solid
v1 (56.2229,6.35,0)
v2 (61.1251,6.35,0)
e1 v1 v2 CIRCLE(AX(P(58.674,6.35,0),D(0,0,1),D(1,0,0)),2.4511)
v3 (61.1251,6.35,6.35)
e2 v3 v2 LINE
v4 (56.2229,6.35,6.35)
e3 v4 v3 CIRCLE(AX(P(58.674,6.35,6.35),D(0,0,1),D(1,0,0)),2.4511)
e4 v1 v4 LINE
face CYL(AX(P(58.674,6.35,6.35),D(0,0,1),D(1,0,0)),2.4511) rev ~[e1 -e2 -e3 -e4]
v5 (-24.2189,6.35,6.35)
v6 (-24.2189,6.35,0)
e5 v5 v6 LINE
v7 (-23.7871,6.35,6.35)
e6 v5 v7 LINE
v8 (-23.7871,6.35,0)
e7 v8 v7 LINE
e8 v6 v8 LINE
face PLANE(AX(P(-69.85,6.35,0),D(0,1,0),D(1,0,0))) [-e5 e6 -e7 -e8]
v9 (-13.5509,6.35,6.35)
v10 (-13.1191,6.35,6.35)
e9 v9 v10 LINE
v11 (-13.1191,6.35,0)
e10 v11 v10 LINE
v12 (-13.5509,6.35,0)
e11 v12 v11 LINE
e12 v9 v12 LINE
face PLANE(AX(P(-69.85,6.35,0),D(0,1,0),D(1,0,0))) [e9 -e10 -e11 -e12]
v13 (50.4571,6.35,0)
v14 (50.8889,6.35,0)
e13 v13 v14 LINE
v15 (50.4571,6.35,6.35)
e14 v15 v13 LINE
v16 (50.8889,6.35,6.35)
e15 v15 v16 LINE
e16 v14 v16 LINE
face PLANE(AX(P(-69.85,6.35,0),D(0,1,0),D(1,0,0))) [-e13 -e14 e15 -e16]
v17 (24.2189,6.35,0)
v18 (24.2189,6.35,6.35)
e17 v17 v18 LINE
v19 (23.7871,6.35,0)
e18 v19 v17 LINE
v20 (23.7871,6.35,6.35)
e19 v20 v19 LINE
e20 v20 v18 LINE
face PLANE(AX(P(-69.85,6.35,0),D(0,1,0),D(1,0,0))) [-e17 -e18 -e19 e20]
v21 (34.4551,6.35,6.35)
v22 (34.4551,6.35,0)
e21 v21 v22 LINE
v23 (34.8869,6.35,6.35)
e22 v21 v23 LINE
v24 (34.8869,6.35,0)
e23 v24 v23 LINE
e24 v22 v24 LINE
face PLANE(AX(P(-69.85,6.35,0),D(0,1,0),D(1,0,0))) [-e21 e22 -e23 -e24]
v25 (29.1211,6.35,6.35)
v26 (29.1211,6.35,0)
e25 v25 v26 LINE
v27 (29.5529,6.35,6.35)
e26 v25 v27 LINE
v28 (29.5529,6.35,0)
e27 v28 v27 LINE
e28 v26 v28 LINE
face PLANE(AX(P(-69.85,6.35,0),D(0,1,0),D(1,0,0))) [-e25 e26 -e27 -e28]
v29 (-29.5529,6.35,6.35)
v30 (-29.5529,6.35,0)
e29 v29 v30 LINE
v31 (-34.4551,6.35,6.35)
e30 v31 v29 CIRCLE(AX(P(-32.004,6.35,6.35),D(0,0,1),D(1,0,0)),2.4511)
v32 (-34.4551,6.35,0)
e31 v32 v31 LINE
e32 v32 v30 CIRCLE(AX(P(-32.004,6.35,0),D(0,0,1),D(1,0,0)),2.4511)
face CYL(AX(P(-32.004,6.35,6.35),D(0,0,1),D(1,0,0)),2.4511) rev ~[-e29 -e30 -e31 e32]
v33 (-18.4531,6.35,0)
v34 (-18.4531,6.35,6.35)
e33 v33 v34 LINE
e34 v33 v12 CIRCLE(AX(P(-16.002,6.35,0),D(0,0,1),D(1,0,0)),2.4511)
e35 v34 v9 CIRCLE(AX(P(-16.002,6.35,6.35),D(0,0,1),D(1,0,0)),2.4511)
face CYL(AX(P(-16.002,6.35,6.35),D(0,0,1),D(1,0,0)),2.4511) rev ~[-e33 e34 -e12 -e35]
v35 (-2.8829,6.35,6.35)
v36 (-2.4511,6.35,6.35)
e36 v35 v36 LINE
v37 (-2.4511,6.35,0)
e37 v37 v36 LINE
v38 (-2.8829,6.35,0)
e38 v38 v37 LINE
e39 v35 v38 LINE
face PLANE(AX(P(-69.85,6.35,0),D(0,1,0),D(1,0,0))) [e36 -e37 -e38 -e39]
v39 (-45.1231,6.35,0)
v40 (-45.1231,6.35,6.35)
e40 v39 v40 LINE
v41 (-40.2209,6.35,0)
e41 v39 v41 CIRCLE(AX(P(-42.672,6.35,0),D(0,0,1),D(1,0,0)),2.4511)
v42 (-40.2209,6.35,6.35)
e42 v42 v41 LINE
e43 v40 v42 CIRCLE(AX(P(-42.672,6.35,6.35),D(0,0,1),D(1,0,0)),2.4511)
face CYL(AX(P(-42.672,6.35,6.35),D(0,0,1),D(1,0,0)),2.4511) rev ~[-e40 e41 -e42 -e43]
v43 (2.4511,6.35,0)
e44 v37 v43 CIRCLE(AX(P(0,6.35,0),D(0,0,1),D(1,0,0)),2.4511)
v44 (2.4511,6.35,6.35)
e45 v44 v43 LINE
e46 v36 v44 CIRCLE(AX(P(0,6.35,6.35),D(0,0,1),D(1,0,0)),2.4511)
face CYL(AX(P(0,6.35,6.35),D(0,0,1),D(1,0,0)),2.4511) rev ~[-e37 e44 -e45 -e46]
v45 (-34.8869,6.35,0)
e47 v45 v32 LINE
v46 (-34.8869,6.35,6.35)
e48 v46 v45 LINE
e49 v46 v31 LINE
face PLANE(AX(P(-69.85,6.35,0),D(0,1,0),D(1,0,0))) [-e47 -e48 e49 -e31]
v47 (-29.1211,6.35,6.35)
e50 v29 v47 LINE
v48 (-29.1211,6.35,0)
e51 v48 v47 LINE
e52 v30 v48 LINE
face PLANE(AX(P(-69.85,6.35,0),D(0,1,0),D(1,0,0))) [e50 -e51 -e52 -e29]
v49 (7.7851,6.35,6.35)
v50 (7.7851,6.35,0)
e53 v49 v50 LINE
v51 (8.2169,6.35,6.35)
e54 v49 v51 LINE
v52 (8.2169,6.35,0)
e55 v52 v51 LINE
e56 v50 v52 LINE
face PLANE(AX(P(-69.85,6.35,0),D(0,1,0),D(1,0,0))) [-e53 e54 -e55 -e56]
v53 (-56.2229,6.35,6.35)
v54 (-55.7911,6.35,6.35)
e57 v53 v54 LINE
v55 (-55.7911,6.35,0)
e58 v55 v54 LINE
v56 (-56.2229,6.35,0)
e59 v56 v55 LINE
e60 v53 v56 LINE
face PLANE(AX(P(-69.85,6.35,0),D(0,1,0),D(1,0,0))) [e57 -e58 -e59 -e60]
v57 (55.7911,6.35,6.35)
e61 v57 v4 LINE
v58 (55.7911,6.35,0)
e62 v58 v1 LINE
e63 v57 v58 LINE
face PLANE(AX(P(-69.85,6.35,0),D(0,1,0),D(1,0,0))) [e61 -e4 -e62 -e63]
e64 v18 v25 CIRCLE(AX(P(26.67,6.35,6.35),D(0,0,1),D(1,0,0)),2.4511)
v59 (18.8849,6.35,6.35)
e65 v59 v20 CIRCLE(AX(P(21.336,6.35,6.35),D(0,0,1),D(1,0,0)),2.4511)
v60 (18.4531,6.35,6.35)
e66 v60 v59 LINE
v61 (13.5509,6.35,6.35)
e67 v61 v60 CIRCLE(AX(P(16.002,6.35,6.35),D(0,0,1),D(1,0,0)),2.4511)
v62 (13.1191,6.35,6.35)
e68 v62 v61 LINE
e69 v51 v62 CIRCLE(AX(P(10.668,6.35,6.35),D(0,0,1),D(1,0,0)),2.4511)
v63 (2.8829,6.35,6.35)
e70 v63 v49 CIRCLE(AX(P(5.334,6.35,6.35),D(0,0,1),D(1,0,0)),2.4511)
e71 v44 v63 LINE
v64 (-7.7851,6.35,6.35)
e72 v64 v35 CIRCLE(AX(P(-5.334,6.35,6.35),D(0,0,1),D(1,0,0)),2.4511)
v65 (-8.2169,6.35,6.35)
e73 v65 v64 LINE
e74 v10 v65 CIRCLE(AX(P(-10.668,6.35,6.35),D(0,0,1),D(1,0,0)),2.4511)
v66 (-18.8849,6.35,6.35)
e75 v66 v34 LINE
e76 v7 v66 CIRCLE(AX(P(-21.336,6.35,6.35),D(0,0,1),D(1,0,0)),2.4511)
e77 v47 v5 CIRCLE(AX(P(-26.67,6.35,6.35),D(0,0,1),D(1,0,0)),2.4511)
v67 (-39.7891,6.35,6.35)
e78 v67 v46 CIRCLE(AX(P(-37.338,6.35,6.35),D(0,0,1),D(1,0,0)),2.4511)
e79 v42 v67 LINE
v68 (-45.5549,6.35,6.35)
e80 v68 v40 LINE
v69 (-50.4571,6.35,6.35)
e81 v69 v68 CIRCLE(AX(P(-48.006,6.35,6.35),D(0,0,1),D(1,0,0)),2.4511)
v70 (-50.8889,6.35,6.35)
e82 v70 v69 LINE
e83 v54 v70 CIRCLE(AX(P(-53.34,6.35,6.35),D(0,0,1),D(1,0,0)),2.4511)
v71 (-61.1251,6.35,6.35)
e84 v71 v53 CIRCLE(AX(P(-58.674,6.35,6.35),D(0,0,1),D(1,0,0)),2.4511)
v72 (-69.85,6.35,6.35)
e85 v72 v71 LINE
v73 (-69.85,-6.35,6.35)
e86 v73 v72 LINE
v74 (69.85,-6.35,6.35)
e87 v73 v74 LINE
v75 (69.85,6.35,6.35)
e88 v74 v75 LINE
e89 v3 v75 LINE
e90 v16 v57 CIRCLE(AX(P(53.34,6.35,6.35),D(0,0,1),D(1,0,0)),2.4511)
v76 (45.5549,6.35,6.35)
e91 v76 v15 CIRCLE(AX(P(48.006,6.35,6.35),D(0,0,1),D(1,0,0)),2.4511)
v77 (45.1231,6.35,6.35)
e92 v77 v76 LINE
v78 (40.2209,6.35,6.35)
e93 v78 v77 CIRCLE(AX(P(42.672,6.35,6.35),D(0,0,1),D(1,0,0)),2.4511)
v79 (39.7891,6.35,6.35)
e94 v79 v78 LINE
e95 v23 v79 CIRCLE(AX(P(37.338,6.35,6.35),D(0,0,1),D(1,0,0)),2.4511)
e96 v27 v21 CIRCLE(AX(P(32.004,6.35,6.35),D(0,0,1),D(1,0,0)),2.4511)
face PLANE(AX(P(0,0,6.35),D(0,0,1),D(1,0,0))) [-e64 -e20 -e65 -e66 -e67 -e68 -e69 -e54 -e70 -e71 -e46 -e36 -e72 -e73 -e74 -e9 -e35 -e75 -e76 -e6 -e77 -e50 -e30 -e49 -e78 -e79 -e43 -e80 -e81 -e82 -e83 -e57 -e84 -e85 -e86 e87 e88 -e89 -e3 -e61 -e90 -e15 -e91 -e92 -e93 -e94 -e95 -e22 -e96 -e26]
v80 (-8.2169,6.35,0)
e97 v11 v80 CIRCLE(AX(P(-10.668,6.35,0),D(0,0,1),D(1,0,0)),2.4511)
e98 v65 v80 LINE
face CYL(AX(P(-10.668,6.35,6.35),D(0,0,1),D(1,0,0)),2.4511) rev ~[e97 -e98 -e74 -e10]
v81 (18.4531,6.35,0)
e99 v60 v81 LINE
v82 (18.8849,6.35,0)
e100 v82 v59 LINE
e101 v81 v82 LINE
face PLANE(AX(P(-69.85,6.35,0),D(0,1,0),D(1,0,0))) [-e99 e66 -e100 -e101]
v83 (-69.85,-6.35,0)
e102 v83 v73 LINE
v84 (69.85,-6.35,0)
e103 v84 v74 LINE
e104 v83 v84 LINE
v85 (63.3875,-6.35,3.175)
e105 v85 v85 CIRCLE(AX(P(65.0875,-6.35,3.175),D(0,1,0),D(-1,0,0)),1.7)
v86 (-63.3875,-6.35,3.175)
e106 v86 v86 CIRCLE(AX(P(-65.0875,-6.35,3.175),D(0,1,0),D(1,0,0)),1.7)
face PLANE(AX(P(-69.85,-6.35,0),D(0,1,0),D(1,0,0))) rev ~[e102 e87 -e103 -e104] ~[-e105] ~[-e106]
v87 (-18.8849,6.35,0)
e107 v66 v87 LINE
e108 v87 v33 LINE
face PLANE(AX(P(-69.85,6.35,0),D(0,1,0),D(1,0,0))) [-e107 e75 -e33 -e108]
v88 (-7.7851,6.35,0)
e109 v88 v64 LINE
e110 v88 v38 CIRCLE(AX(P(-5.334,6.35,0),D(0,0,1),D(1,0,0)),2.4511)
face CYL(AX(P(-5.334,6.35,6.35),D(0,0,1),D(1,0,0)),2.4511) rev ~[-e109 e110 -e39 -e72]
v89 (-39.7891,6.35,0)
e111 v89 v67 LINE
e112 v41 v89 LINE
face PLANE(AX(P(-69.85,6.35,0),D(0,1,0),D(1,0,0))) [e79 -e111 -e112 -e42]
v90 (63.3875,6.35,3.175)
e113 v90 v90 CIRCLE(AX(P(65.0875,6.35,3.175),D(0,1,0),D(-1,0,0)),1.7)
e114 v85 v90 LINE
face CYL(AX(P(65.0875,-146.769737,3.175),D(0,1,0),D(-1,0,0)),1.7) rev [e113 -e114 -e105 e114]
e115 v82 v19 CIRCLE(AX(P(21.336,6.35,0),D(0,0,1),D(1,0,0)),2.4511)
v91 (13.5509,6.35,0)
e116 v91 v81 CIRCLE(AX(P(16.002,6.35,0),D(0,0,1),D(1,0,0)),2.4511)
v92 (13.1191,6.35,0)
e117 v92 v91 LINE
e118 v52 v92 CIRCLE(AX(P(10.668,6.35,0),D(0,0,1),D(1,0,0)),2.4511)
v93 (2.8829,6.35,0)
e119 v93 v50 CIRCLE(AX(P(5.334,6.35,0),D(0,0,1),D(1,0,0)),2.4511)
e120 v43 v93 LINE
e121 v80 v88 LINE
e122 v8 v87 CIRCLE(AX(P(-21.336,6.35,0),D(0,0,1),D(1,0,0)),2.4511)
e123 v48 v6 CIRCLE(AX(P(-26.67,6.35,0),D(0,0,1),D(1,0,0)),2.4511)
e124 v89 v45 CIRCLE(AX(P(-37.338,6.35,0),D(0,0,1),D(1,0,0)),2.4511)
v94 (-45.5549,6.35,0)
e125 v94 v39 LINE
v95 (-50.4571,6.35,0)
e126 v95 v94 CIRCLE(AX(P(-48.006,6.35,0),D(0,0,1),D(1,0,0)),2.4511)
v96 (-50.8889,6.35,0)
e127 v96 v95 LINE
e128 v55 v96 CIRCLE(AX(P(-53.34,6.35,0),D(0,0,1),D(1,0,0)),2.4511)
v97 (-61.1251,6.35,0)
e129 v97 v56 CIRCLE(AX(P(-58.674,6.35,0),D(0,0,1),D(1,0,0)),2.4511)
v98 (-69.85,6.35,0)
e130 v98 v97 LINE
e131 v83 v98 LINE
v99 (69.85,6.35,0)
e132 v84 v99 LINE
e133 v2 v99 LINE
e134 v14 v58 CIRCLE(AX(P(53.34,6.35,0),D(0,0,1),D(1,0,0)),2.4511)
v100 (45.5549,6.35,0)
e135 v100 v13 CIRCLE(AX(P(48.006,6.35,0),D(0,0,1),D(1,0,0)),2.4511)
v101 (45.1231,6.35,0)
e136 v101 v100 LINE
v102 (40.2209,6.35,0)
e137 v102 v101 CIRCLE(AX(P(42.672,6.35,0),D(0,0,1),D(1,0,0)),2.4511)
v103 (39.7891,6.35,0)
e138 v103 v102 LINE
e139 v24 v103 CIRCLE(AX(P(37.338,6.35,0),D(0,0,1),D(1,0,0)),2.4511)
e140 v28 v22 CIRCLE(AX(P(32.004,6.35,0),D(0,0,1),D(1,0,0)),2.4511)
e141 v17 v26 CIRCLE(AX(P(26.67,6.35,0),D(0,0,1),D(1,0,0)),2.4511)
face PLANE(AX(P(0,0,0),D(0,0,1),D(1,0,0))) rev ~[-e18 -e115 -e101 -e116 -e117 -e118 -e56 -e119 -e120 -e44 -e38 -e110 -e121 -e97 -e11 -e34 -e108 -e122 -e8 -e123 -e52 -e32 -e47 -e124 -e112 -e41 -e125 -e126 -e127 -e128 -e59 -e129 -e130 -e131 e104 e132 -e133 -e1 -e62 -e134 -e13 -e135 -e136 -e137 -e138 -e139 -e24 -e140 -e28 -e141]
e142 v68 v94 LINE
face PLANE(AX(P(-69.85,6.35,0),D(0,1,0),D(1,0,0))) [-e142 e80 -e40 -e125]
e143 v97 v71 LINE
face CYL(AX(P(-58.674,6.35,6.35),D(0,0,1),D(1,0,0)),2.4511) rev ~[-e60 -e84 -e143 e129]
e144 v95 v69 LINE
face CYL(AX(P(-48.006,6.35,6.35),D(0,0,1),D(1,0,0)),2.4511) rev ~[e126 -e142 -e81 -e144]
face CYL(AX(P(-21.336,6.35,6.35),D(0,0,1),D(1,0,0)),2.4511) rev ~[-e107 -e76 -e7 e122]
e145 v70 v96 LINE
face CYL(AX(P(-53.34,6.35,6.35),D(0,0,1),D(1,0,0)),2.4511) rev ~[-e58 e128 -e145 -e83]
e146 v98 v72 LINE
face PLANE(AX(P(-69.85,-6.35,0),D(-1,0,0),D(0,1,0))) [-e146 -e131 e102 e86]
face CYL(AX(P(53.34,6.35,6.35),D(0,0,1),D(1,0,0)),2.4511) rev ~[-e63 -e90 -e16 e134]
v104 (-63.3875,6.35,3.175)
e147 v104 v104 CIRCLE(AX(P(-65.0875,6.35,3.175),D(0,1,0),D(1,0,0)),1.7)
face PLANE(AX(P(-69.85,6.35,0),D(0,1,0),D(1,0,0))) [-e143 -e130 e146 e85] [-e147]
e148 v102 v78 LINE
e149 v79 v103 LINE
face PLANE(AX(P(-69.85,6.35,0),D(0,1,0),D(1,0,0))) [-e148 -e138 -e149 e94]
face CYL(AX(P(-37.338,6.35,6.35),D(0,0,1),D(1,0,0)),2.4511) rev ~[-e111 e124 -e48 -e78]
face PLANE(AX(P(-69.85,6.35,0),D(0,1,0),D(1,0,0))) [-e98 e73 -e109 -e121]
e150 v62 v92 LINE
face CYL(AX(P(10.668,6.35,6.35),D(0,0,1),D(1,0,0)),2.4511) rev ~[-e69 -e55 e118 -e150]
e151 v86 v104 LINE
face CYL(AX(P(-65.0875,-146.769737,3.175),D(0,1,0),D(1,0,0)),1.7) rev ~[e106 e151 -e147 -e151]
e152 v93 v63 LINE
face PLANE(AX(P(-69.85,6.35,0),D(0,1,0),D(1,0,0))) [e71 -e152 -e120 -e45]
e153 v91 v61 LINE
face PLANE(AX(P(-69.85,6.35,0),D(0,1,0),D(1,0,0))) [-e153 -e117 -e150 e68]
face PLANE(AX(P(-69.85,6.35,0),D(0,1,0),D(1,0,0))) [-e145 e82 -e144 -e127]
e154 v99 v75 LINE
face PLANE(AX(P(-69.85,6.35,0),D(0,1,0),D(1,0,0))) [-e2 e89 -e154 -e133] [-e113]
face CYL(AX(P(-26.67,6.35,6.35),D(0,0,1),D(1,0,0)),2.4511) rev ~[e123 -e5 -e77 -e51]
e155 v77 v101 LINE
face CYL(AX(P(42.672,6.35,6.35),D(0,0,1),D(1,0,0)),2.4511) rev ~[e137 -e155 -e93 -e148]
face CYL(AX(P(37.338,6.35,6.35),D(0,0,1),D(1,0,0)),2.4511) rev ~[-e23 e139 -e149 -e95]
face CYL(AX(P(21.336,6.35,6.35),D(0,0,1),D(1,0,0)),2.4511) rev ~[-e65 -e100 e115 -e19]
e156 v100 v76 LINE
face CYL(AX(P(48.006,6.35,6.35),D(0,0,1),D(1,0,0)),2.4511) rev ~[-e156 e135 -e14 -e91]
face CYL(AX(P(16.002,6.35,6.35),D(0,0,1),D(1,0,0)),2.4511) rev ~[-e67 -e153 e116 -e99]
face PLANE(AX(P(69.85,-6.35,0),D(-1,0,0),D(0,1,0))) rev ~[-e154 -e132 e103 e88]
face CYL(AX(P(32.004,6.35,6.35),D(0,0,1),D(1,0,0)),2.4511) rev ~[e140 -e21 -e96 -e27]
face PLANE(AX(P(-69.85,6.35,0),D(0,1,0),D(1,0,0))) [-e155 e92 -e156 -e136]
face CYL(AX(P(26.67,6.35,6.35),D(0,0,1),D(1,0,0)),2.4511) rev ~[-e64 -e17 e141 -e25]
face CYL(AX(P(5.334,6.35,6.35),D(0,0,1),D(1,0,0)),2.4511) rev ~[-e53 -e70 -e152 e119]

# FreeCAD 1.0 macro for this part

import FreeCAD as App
import Part
import Sketcher
from FreeCAD import Vector
Q = App.Units.Quantity


def add_polygon(sketch, points):
    """Adds a closed chain of lines whose ends are joined by coincident constraints."""
    first, n = sketch.GeometryCount, len(points)
    for a, b in zip(points, points[1:] + points[:1]):
        sketch.addGeometry(Part.LineSegment(App.Vector(*a, 0), App.Vector(*b, 0)), False)
    for i in range(n):
        sketch.addConstraint(Sketcher.Constraint("Coincident", first + i, 2, first + (i + 1) % n, 1))

doc = App.newDocument("Part")
body = doc.addObject("PartDesign::Body", "Body")

# Sketch on XY plane
sketch1 = body.newObject("Sketcher::SketchObject", "Sketch")
sketch1.AttachmentSupport = (doc.getObject("XY_Plane"), [""])
sketch1.MapMode = "FlatFace"
add_polygon(sketch1, [(-69.85, 6.35), (-69.85, -6.35), (69.85, -6.35), (69.85, 6.35)])  # lines 0-3
sketch1.addConstraint([
    Sketcher.Constraint("Vertical", 0),
    Sketcher.Constraint("Horizontal", 1),
    Sketcher.Constraint("Vertical", 2),
    Sketcher.Constraint("Horizontal", 3),
    Sketcher.Constraint("Symmetric", 0, 2, 2, 2, -1, 1),
    Sketcher.Constraint("DistanceX", 1, 1, 1, 2, Q("5.5 in")),
    Sketcher.Constraint("DistanceY", 0, 2, 0, 1, Q("0.5 in")),
])
pad1 = body.newObject("PartDesign::Pad", "Pad")
pad1.Profile = sketch1
pad1.Length = Q("0.25 in")

# Sketch on XY plane
sketch2 = body.newObject("Sketcher::SketchObject", "Sketch001")
sketch2.AttachmentSupport = (doc.getObject("XY_Plane"), [""])
sketch2.MapMode = "FlatFace"
sketch2.AttachmentOffset = App.Placement(Vector(0, 0, 0.25 * 25.4), App.Rotation())
sketch2.addGeometry([
    Part.Circle(Vector(0, 6.35, 0), Vector(0, 0, 1), 2.4511),  # 0
    Part.Circle(Vector(5.334, 6.35, 0), Vector(0, 0, 1), 2.4511),  # 1
    Part.Circle(Vector(10.668, 6.35, 0), Vector(0, 0, 1), 2.4511),  # 2
    Part.Circle(Vector(16.002, 6.35, 0), Vector(0, 0, 1), 2.4511),  # 3
    Part.Circle(Vector(21.336, 6.35, 0), Vector(0, 0, 1), 2.4511),  # 4
    Part.Circle(Vector(26.67, 6.35, 0), Vector(0, 0, 1), 2.4511),  # 5
    Part.Circle(Vector(32.004, 6.35, 0), Vector(0, 0, 1), 2.4511),  # 6
    Part.Circle(Vector(37.338, 6.35, 0), Vector(0, 0, 1), 2.4511),  # 7
    Part.Circle(Vector(42.672, 6.35, 0), Vector(0, 0, 1), 2.4511),  # 8
    Part.Circle(Vector(48.006, 6.35, 0), Vector(0, 0, 1), 2.4511),  # 9
    Part.Circle(Vector(53.34, 6.35, 0), Vector(0, 0, 1), 2.4511),  # 10
    Part.Circle(Vector(58.674, 6.35, 0), Vector(0, 0, 1), 2.4511),  # 11
    Part.Circle(Vector(-5.334, 6.35, 0), Vector(0, 0, 1), 2.4511),  # 12
    Part.Circle(Vector(-10.668, 6.35, 0), Vector(0, 0, 1), 2.4511),  # 13
    Part.Circle(Vector(-16.002, 6.35, 0), Vector(0, 0, 1), 2.4511),  # 14
    Part.Circle(Vector(-21.336, 6.35, 0), Vector(0, 0, 1), 2.4511),  # 15
    Part.Circle(Vector(-26.67, 6.35, 0), Vector(0, 0, 1), 2.4511),  # 16
    Part.Circle(Vector(-32.004, 6.35, 0), Vector(0, 0, 1), 2.4511),  # 17
    Part.Circle(Vector(-37.338, 6.35, 0), Vector(0, 0, 1), 2.4511),  # 18
    Part.Circle(Vector(-42.672, 6.35, 0), Vector(0, 0, 1), 2.4511),  # 19
    Part.Circle(Vector(-48.006, 6.35, 0), Vector(0, 0, 1), 2.4511),  # 20
    Part.Circle(Vector(-53.34, 6.35, 0), Vector(0, 0, 1), 2.4511),  # 21
    Part.Circle(Vector(-58.674, 6.35, 0), Vector(0, 0, 1), 2.4511),  # 22
], False)
sketch2.addConstraint([
    Sketcher.Constraint("Equal", 0, 1),
    Sketcher.Constraint("Equal", 1, 2),
    Sketcher.Constraint("Equal", 2, 3),
    Sketcher.Constraint("Equal", 3, 4),
    Sketcher.Constraint("Equal", 4, 5),
    Sketcher.Constraint("Equal", 5, 6),
    Sketcher.Constraint("Equal", 6, 7),
    Sketcher.Constraint("Equal", 7, 8),
    Sketcher.Constraint("Equal", 8, 9),
    Sketcher.Constraint("Equal", 9, 10),
    Sketcher.Constraint("Equal", 10, 11),
    Sketcher.Constraint("Equal", 11, 12),
    Sketcher.Constraint("Equal", 12, 13),
    Sketcher.Constraint("Equal", 13, 14),
    Sketcher.Constraint("Equal", 14, 15),
    Sketcher.Constraint("Equal", 15, 16),
    Sketcher.Constraint("Equal", 16, 17),
    Sketcher.Constraint("Equal", 17, 18),
    Sketcher.Constraint("Equal", 18, 19),
    Sketcher.Constraint("Equal", 19, 20),
    Sketcher.Constraint("Equal", 20, 21),
    Sketcher.Constraint("Equal", 21, 22),
    Sketcher.Constraint("Symmetric", 1, 3, 12, 3, -2),
    Sketcher.Constraint("Symmetric", 2, 3, 13, 3, -2),
    Sketcher.Constraint("Symmetric", 3, 3, 14, 3, -2),
    Sketcher.Constraint("Symmetric", 4, 3, 15, 3, -2),
    Sketcher.Constraint("Symmetric", 5, 3, 16, 3, -2),
    Sketcher.Constraint("Symmetric", 6, 3, 17, 3, -2),
    Sketcher.Constraint("Symmetric", 7, 3, 18, 3, -2),
    Sketcher.Constraint("Symmetric", 8, 3, 19, 3, -2),
    Sketcher.Constraint("Symmetric", 9, 3, 20, 3, -2),
    Sketcher.Constraint("Symmetric", 10, 3, 21, 3, -2),
    Sketcher.Constraint("Symmetric", 11, 3, 22, 3, -2),
    Sketcher.Constraint("PointOnObject", 0, 3, -2),
    Sketcher.Constraint("Horizontal", 0, 3, 1, 3),
    Sketcher.Constraint("Horizontal", 1, 3, 2, 3),
    Sketcher.Constraint("Horizontal", 2, 3, 3, 3),
    Sketcher.Constraint("Horizontal", 3, 3, 4, 3),
    Sketcher.Constraint("Horizontal", 4, 3, 5, 3),
    Sketcher.Constraint("Horizontal", 5, 3, 6, 3),
    Sketcher.Constraint("Horizontal", 6, 3, 7, 3),
    Sketcher.Constraint("Horizontal", 7, 3, 8, 3),
    Sketcher.Constraint("Horizontal", 8, 3, 9, 3),
    Sketcher.Constraint("Horizontal", 9, 3, 10, 3),
    Sketcher.Constraint("Horizontal", 10, 3, 11, 3),
    Sketcher.Constraint("Diameter", 0, Q("0.193 in")),
    Sketcher.Constraint("DistanceX", -1, 1, 10, 3, Q("2.1 in")),
    Sketcher.Constraint("DistanceY", -1, 1, 0, 3, Q("0.25 in")),
    Sketcher.Constraint("DistanceX", -1, 1, 1, 3, Q("0.21 in")),
    Sketcher.Constraint("DistanceX", -1, 1, 2, 3, Q("0.42 in")),
    Sketcher.Constraint("DistanceX", -1, 1, 3, 3, Q("0.63 in")),
    Sketcher.Constraint("DistanceX", -1, 1, 4, 3, Q("0.84 in")),
    Sketcher.Constraint("DistanceX", -1, 1, 5, 3, Q("1.05 in")),
    Sketcher.Constraint("DistanceX", -1, 1, 6, 3, Q("1.26 in")),
    Sketcher.Constraint("DistanceX", -1, 1, 7, 3, Q("1.47 in")),
    Sketcher.Constraint("DistanceX", -1, 1, 8, 3, Q("1.68 in")),
    Sketcher.Constraint("DistanceX", -1, 1, 9, 3, Q("1.89 in")),
    Sketcher.Constraint("DistanceX", -1, 1, 11, 3, Q("2.31 in")),
])
pocket1 = body.newObject("PartDesign::Pocket", "Pocket")
pocket1.Profile = sketch2
pocket1.Type = "ThroughAll"

# Sketch on XZ plane
sketch3 = body.newObject("Sketcher::SketchObject", "Sketch002")
sketch3.AttachmentSupport = (doc.getObject("XZ_Plane"), [""])
sketch3.MapMode = "FlatFace"
sketch3.AttachmentOffset = App.Placement(Vector(0, 0, 0.25 * 25.4), App.Rotation())
sketch3.addGeometry(Part.Circle(Vector(-65.0875, 3.175, 0), Vector(0, 0, 1), 1.7), False)
sketch3.addConstraint([
    Sketcher.Constraint("Diameter", 0, Q("3.4 mm")),
    Sketcher.Constraint("DistanceX", 0, 3, -1, 1, Q("2.5625 in")),
    Sketcher.Constraint("DistanceY", -1, 1, 0, 3, Q("0.125 in")),
])
doc.recompute()
hole = body.newObject("PartDesign::Hole", "Hole")
hole.Profile = sketch3
hole.ThreadType = "None"
hole.Diameter = 3.4
hole.DepthType = "ThroughAll"
doc.recompute()

mirrored = body.newObject("PartDesign::Mirrored", "Mirrored")
mirrored.Originals = [hole]
mirrored.MirrorPlane = (doc.getObject("YZ_Plane"), [""])
body.Tip = mirrored

doc.recompute()
